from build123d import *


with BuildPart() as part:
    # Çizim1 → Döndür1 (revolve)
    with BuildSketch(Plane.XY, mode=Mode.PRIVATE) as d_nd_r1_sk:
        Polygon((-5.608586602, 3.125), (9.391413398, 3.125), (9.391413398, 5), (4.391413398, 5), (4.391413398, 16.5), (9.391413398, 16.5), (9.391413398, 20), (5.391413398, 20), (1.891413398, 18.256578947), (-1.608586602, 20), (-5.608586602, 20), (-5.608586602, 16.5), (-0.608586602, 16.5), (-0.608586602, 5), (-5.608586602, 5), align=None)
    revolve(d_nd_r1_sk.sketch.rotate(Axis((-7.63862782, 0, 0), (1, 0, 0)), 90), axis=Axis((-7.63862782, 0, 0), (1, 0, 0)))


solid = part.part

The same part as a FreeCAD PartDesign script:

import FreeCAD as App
import Part
import Sketcher

doc = App.newDocument("Part")
body = doc.addObject("PartDesign::Body", "Body")

# Sketch on XY plane
sketch1 = body.newObject("Sketcher::SketchObject", "Sketch")
sketch1.AttachmentSupport = (doc.getObject("XY_Plane"), [""])
sketch1.MapMode = "FlatFace"
sketch1.addGeometry(Part.LineSegment(App.Vector(-5.6, 3.1, 0), App.Vector(9.4, 3.1, 0)), False)
sketch1.addGeometry(Part.LineSegment(App.Vector(9.4, 3.1, 0), App.Vector(9.4, 5, 0)), False)
sketch1.addGeometry(Part.LineSegment(App.Vector(9.4, 5, 0), App.Vector(4.4, 5, 0)), False)
sketch1.addGeometry(Part.LineSegment(App.Vector(4.4, 5, 0), App.Vector(4.4, 16.5, 0)), False)
sketch1.addGeometry(Part.LineSegment(App.Vector(4.4, 16.5, 0), App.Vector(9.4, 16.5, 0)), False)
sketch1.addGeometry(Part.LineSegment(App.Vector(9.4, 16.5, 0), App.Vector(9.4, 20, 0)), False)
sketch1.addGeometry(Part.LineSegment(App.Vector(9.4, 20, 0), App.Vector(5.4, 20, 0)), False)
sketch1.addGeometry(Part.LineSegment(App.Vector(5.4, 20, 0), App.Vector(1.9, 18.3, 0)), False)
sketch1.addGeometry(Part.LineSegment(App.Vector(1.9, 18.3, 0), App.Vector(-1.6, 20, 0)), False)
sketch1.addGeometry(Part.LineSegment(App.Vector(-1.6, 20, 0), App.Vector(-5.6, 20, 0)), False)
sketch1.addGeometry(Part.LineSegment(App.Vector(-5.6, 20, 0), App.Vector(-5.6, 16.5, 0)), False)
sketch1.addGeometry(Part.LineSegment(App.Vector(-5.6, 16.5, 0), App.Vector(-0.6, 16.5, 0)), False)
sketch1.addGeometry(Part.LineSegment(App.Vector(-0.6, 16.5, 0), App.Vector(-0.6, 5, 0)), False)
sketch1.addGeometry(Part.LineSegment(App.Vector(-0.6, 5, 0), App.Vector(-5.6, 5, 0)), False)
sketch1.addGeometry(Part.LineSegment(App.Vector(-5.6, 5, 0), App.Vector(-5.6, 3.1, 0)), False)
sketch1.addConstraint(Sketcher.Constraint("Coincident", 0, 2, 1, 1))
sketch1.addConstraint(Sketcher.Constraint("Coincident", 1, 2, 2, 1))
sketch1.addConstraint(Sketcher.Constraint("Coincident", 2, 2, 3, 1))
sketch1.addConstraint(Sketcher.Constraint("Coincident", 3, 2, 4, 1))
sketch1.addConstraint(Sketcher.Constraint("Coincident", 4, 2, 5, 1))
sketch1.addConstraint(Sketcher.Constraint("Coincident", 5, 2, 6, 1))
sketch1.addConstraint(Sketcher.Constraint("Coincident", 6, 2, 7, 1))
sketch1.addConstraint(Sketcher.Constraint("Coincident", 7, 2, 8, 1))
sketch1.addConstraint(Sketcher.Constraint("Coincident", 8, 2, 9, 1))
sketch1.addConstraint(Sketcher.Constraint("Coincident", 9, 2, 10, 1))
sketch1.addConstraint(Sketcher.Constraint("Coincident", 10, 2, 11, 1))
sketch1.addConstraint(Sketcher.Constraint("Coincident", 11, 2, 12, 1))
sketch1.addConstraint(Sketcher.Constraint("Coincident", 12, 2, 13, 1))
sketch1.addConstraint(Sketcher.Constraint("Coincident", 13, 2, 14, 1))
sketch1.addConstraint(Sketcher.Constraint("Coincident", 14, 2, 0, 1))
sketch1.addConstraint(Sketcher.Constraint("Horizontal", 0))
sketch1.addConstraint(Sketcher.Constraint("Vertical", 1))
sketch1.addConstraint(Sketcher.Constraint("Horizontal", 2))
sketch1.addConstraint(Sketcher.Constraint("Vertical", 3))
sketch1.addConstraint(Sketcher.Constraint("Horizontal", 4))
sketch1.addConstraint(Sketcher.Constraint("Vertical", 5))
sketch1.addConstraint(Sketcher.Constraint("Horizontal", 6))
sketch1.addConstraint(Sketcher.Constraint("Horizontal", 9))
sketch1.addConstraint(Sketcher.Constraint("Vertical", 10))
sketch1.addConstraint(Sketcher.Constraint("Horizontal", 11))
sketch1.addConstraint(Sketcher.Constraint("Vertical", 12))
sketch1.addConstraint(Sketcher.Constraint("Horizontal", 13))
sketch1.addConstraint(Sketcher.Constraint("Vertical", 14))
sketch1.addConstraint(Sketcher.Constraint("Horizontal", 6, 2, 8, 2))
sketch1.addConstraint(Sketcher.Constraint("Horizontal", 4, 2, 10, 2))
sketch1.addConstraint(Sketcher.Constraint("Horizontal", 2, 2, 12, 2))
sketch1.addConstraint(Sketcher.Constraint("Vertical", 1, 2, 4, 2))
sketch1.addConstraint(Sketcher.Constraint("Vertical", 10, 2, 13, 2))
sketch1.addConstraint(Sketcher.Constraint("Equal", 6, 9))
sketch1.addConstraint(Sketcher.Constraint("Equal", 4, 11))
sketch1.addConstraint(Sketcher.Constraint("Equal", 7, 8))
sketch1.addConstraint(Sketcher.Constraint("DistanceX", 0, 1, 0, 2, 15.0))
sketch1.addConstraint(Sketcher.Constraint("DistanceX", 2, 2, 2, 1, 5.0))
sketch1.addConstraint(Sketcher.Constraint("DistanceX", 6, 2, 6, 1, 4.0))
sketch1.addConstraint(Sketcher.Constraint("DistanceY", 3, 1, 3, 2, 11.5))
sketch1.addConstraint(Sketcher.Constraint("DistanceY", 5, 1, 5, 2, 3.5))
sketch1.addConstraint(Sketcher.Constraint("DistanceY", -1, 1, 1, 2, 5.0))
sketch1.addConstraint(Sketcher.Constraint("DistanceY", 1, 1, 1, 2, 1.875))
sketch1.addConstraint(Sketcher.Constraint("Distance", 7, 3.910181))
sketch1.addConstraint(Sketcher.Constraint("DistanceX", -1, 1, 0, 2, 9.391413))
revolution = body.newObject("PartDesign::Revolution", "Revolution")
revolution.Profile = sketch1
revolution.ReferenceAxis = (sketch1, ["H_Axis"])
revolution.Angle = 360

doc.recompute()
